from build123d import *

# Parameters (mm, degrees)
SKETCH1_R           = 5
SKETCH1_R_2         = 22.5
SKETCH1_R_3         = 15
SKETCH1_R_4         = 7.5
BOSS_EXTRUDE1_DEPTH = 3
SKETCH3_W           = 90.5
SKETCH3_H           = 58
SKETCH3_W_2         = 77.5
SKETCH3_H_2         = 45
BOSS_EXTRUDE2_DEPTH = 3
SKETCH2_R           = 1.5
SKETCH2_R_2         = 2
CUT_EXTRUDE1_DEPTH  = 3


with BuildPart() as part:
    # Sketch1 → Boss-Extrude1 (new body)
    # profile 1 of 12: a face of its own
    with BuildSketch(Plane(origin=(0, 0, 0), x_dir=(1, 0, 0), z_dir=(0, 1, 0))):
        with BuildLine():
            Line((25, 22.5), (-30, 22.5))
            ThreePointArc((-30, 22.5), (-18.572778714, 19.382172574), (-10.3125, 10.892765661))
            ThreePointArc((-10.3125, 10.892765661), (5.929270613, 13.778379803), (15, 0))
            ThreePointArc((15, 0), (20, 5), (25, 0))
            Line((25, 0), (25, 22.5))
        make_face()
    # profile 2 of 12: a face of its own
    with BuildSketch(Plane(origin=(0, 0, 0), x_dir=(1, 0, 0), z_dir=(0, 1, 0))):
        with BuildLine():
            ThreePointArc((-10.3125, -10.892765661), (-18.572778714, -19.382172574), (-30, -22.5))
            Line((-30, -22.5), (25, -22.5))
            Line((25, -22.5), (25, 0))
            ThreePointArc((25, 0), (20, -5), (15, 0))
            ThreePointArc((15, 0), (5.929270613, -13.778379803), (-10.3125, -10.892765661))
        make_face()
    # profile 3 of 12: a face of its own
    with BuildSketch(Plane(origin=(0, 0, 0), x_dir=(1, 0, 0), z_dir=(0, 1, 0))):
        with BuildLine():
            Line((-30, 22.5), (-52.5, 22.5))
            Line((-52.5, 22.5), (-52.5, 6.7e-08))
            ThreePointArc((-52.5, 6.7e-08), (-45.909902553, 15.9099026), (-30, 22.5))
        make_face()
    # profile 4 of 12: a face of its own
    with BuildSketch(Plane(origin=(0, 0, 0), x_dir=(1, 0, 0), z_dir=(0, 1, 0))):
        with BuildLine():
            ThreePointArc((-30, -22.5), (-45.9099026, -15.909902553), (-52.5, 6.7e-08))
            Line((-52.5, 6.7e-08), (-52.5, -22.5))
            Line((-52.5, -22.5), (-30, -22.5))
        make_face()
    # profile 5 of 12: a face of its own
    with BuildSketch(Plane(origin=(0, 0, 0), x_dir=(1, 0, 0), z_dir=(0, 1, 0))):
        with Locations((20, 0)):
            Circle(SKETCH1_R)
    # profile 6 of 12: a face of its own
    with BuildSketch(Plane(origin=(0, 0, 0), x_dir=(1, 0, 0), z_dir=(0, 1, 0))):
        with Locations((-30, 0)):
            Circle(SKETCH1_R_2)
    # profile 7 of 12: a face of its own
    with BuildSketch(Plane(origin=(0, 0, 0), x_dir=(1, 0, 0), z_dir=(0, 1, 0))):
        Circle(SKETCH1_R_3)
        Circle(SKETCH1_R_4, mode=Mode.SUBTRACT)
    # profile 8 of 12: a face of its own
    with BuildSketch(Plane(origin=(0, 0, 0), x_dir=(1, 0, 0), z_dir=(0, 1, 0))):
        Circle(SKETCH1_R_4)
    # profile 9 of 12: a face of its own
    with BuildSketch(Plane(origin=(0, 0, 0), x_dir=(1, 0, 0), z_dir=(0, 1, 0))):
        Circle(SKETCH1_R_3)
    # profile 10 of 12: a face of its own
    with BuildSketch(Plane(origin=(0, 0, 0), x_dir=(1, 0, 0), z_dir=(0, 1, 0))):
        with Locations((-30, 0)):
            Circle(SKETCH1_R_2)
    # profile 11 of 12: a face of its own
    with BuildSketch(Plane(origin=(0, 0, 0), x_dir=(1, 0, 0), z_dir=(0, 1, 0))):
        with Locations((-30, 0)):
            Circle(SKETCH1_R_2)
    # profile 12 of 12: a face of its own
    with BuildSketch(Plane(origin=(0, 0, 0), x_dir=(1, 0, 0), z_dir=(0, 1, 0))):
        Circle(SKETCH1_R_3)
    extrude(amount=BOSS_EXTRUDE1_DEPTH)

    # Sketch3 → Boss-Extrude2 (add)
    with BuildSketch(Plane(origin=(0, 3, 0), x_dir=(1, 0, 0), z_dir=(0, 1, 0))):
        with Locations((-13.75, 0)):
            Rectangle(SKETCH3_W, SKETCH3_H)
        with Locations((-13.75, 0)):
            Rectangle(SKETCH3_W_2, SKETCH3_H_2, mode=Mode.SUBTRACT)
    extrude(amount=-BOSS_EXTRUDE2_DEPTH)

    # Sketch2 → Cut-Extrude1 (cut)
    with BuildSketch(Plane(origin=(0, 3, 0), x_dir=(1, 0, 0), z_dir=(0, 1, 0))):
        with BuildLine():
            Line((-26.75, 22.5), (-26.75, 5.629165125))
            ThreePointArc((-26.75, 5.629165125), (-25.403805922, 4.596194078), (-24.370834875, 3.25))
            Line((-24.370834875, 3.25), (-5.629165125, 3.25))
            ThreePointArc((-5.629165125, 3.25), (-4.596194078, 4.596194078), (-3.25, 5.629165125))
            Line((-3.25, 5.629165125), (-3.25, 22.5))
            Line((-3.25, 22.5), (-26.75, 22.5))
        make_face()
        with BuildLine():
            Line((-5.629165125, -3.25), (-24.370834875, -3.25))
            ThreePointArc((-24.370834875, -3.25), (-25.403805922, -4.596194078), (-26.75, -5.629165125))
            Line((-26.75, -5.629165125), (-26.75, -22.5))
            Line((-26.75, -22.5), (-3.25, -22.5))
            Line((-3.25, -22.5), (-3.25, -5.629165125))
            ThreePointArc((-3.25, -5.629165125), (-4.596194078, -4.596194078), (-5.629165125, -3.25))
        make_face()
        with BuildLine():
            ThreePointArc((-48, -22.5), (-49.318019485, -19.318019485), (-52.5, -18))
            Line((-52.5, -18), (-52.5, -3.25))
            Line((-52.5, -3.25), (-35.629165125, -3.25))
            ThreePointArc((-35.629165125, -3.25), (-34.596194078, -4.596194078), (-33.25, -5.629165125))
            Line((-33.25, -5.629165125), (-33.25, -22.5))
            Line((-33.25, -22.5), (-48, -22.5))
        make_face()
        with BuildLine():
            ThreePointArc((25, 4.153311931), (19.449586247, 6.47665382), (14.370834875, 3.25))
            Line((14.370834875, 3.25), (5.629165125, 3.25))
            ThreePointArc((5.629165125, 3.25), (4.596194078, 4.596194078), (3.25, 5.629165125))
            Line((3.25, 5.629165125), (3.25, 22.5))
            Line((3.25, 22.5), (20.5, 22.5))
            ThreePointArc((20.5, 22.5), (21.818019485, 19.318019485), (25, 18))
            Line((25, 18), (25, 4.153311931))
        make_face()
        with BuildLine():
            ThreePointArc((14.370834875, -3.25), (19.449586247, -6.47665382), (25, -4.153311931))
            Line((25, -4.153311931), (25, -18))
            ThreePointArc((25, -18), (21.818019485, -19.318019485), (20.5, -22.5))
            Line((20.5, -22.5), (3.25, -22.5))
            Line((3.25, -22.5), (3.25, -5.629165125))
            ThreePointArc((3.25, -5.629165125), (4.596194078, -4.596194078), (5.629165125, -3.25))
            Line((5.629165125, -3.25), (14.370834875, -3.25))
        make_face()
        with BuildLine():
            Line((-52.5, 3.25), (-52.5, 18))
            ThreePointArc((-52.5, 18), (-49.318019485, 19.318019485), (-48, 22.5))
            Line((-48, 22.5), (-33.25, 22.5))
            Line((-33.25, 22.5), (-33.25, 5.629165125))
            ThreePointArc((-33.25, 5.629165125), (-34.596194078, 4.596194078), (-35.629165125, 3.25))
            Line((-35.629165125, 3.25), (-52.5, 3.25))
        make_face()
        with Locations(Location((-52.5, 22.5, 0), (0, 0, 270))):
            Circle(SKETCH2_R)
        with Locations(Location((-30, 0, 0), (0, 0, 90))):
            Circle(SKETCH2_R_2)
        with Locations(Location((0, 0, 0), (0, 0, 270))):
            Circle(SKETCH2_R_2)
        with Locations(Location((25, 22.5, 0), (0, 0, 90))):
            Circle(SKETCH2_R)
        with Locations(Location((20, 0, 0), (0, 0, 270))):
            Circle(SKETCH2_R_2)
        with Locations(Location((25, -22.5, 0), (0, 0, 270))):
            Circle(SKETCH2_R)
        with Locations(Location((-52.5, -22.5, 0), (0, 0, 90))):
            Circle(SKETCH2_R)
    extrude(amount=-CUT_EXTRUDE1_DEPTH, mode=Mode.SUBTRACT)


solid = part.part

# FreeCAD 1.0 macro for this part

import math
import FreeCAD as App
import Part
import Sketcher
Q = App.Units.Quantity


def add_polygon(sketch, points):
    """Adds a closed chain of lines whose ends are joined by coincident constraints."""
    first, n = sketch.GeometryCount, len(points)
    for a, b in zip(points, points[1:] + points[:1]):
        sketch.addGeometry(Part.LineSegment(App.Vector(*a, 0), App.Vector(*b, 0)), False)
    for i in range(n):
        sketch.addConstraint(Sketcher.Constraint("Coincident", first + i, 2, first + (i + 1) % n, 1))

doc = App.newDocument("Part")
body = doc.addObject("PartDesign::Body", "Body")

# Sketch on XZ plane
sketch1 = body.newObject("Sketcher::SketchObject", "Sketch")
sketch1.AttachmentSupport = (doc.getObject("XZ_Plane"), [""])
sketch1.MapMode = "FlatFace"
add_polygon(sketch1, [(25, -22), (-52, -22), (-52, 22), (25, 22)])  # lines 0-3
sketch1.addConstraint([
    Sketcher.Constraint("Horizontal", 0),
    Sketcher.Constraint("Vertical", 1),
    Sketcher.Constraint("Horizontal", 2),
    Sketcher.Constraint("Vertical", 3),
    Sketcher.Constraint("DistanceY", 1, 1, 1, 2, Q("45 mm")),
    Sketcher.Constraint("DistanceX", 0, 2, 0, 1, Q("77.5 mm")),
    Sketcher.Constraint("DistanceX", -1, 1, 2, 2, Q("25 mm")),
    Sketcher.Constraint("DistanceY", 0, 2, -1, 1, Q("22.5 mm")),
])
pad1 = body.newObject("PartDesign::Pad", "Pad")
pad1.Profile = sketch1
pad1.Length = 3
pad1.Reversed = True

# Sketch on XZ plane
sketch2 = body.newObject("Sketcher::SketchObject", "Sketch001")
sketch2.AttachmentSupport = (doc.getObject("XZ_Plane"), [""])
sketch2.MapMode = "FlatFace"
sketch2.AttachmentOffset = App.Placement(App.Vector(0, 0, -3), App.Rotation())
add_polygon(sketch2, [(-59, -29), (-59, 29), (32, 29), (32, -29)])  # lines 0-3
add_polygon(sketch2, [(25, 22), (-52, 22), (-52, -22), (25, -22)])  # lines 4-7
sketch2.addConstraint([
    Sketcher.Constraint("Vertical", 0),
    Sketcher.Constraint("Horizontal", 1),
    Sketcher.Constraint("Vertical", 2),
    Sketcher.Constraint("Horizontal", 3),
    Sketcher.Constraint("Horizontal", 4),
    Sketcher.Constraint("Vertical", 5),
    Sketcher.Constraint("Horizontal", 6),
    Sketcher.Constraint("Vertical", 7),
    Sketcher.Constraint("DistanceY", 0, 1, 0, 2, Q("58 mm")),
    Sketcher.Constraint("DistanceY", 5, 2, 5, 1, Q("45 mm")),
    Sketcher.Constraint("DistanceX", 1, 1, 1, 2, Q("90.5 mm")),
    Sketcher.Constraint("DistanceX", 4, 2, 4, 1, Q("77.5 mm")),
    Sketcher.Constraint("DistanceX", 0, 2, -1, 1, Q("59 mm")),
    Sketcher.Constraint("DistanceY", -1, 1, 0, 2, Q("29 mm")),
    Sketcher.Constraint("DistanceX", -1, 1, 6, 2, Q("25 mm")),
    Sketcher.Constraint("DistanceY", -1, 1, 4, 2, Q("22.5 mm")),
])
pad2 = body.newObject("PartDesign::Pad", "Pad001")
pad2.Profile = sketch2
pad2.Length = 3

# Sketch on XZ plane
sketch3 = body.newObject("Sketcher::SketchObject", "Sketch002")
sketch3.AttachmentSupport = (doc.getObject("XZ_Plane"), [""])
sketch3.MapMode = "FlatFace"
sketch3.AttachmentOffset = App.Placement(App.Vector(0, 0, -3), App.Rotation())
sketch3.addGeometry([
    Part.LineSegment(App.Vector(-26.8, -22.5, 0), App.Vector(-26.8, -5.6, 0)),  # 0
    Part.ArcOfCircle(Part.Circle(App.Vector(-30, 0, 0), App.Vector(0, 0, 1), 6.5), math.radians(-60), math.radians(-30)),  # 1
    Part.LineSegment(App.Vector(-24.4, -3.2, 0), App.Vector(-5.6, -3.2, 0)),  # 2
    Part.ArcOfCircle(Part.Circle(App.Vector(0, 0, 0), App.Vector(0, 0, 1), 6.5), math.radians(-150), math.radians(-120)),  # 3
    Part.LineSegment(App.Vector(-3.2, -5.6, 0), App.Vector(-3.2, -22.5, 0)),  # 4
    Part.LineSegment(App.Vector(-3.2, -22.5, 0), App.Vector(-26.8, -22.5, 0)),  # 5
    Part.LineSegment(App.Vector(-5.6, 3.2, 0), App.Vector(-24.4, 3.2, 0)),  # 6
    Part.ArcOfCircle(Part.Circle(App.Vector(-30, 0, 0), App.Vector(0, 0, 1), 6.5), math.radians(30), math.radians(60)),  # 7
    Part.LineSegment(App.Vector(-26.8, 5.6, 0), App.Vector(-26.8, 22.5, 0)),  # 8
    Part.LineSegment(App.Vector(-26.8, 22.5, 0), App.Vector(-3.2, 22.5, 0)),  # 9
    Part.LineSegment(App.Vector(-3.2, 22.5, 0), App.Vector(-3.2, 5.6, 0)),  # 10
    Part.ArcOfCircle(Part.Circle(App.Vector(0, 0, 0), App.Vector(0, 0, 1), 6.5), math.radians(120), math.radians(150)),  # 11
    Part.ArcOfCircle(Part.Circle(App.Vector(-52.5, 22.5, 0), App.Vector(0, 0, 1), 4.5), math.radians(-90), math.radians(0)),  # 12
    Part.LineSegment(App.Vector(-48, 22.5, 0), App.Vector(-33.2, 22.5, 0)),  # 13
    Part.LineSegment(App.Vector(-33.2, 22.5, 0), App.Vector(-33.2, 5.6, 0)),  # 14
    Part.ArcOfCircle(Part.Circle(App.Vector(-30, 0, 0), App.Vector(0, 0, 1), 6.5), math.radians(120), math.radians(150)),  # 15
    Part.LineSegment(App.Vector(-35.6, 3.2, 0), App.Vector(-52.5, 3.2, 0)),  # 16
    Part.LineSegment(App.Vector(-52.5, 3.2, 0), App.Vector(-52.5, 18, 0)),  # 17
    Part.ArcOfCircle(Part.Circle(App.Vector(20, 0, 0), App.Vector(0, 0, 1), 6.5), math.radians(-150), math.radians(-40)),  # 18
    Part.LineSegment(App.Vector(25, -4.2, 0), App.Vector(25, -18, 0)),  # 19
    Part.ArcOfCircle(Part.Circle(App.Vector(25, -22.5, 0), App.Vector(0, 0, 1), 4.5), math.radians(90), math.radians(180)),  # 20
    Part.LineSegment(App.Vector(20.5, -22.5, 0), App.Vector(3.2, -22.5, 0)),  # 21
    Part.LineSegment(App.Vector(3.2, -22.5, 0), App.Vector(3.2, -5.6, 0)),  # 22
    Part.ArcOfCircle(Part.Circle(App.Vector(0, 0, 0), App.Vector(0, 0, 1), 6.5), math.radians(-60), math.radians(-30)),  # 23
    Part.LineSegment(App.Vector(5.6, -3.2, 0), App.Vector(14.4, -3.2, 0)),  # 24
    Part.ArcOfCircle(Part.Circle(App.Vector(20, 0, 0), App.Vector(0, 0, 1), 6.5), math.radians(40), math.radians(150)),  # 25
    Part.LineSegment(App.Vector(14.4, 3.2, 0), App.Vector(5.6, 3.2, 0)),  # 26
    Part.ArcOfCircle(Part.Circle(App.Vector(0, 0, 0), App.Vector(0, 0, 1), 6.5), math.radians(30), math.radians(60)),  # 27
    Part.LineSegment(App.Vector(3.2, 5.6, 0), App.Vector(3.2, 22.5, 0)),  # 28
    Part.LineSegment(App.Vector(3.2, 22.5, 0), App.Vector(20.5, 22.5, 0)),  # 29
    Part.ArcOfCircle(Part.Circle(App.Vector(25, 22.5, 0), App.Vector(0, 0, 1), 4.5), math.radians(-180), math.radians(-90)),  # 30
    Part.LineSegment(App.Vector(25, 18, 0), App.Vector(25, 4.2, 0)),  # 31
    Part.LineSegment(App.Vector(-52.5, -18, 0), App.Vector(-52.5, -3.2, 0)),  # 32
    Part.LineSegment(App.Vector(-52.5, -3.2, 0), App.Vector(-35.6, -3.2, 0)),  # 33
    Part.ArcOfCircle(Part.Circle(App.Vector(-30, 0, 0), App.Vector(0, 0, 1), 6.5), math.radians(-150), math.radians(-120)),  # 34
    Part.LineSegment(App.Vector(-33.2, -5.6, 0), App.Vector(-33.2, -22.5, 0)),  # 35
    Part.LineSegment(App.Vector(-33.2, -22.5, 0), App.Vector(-48, -22.5, 0)),  # 36
    Part.ArcOfCircle(Part.Circle(App.Vector(-52.5, -22.5, 0), App.Vector(0, 0, 1), 4.5), math.radians(0), math.radians(90)),  # 37
    Part.Circle(App.Vector(-52.5, -22.5, 0), App.Vector(0, 0, 1), 1.5),  # 38
    Part.Circle(App.Vector(-30, 0, 0), App.Vector(0, 0, 1), 2),  # 39
    Part.Circle(App.Vector(0, 0, 0), App.Vector(0, 0, 1), 2),  # 40
    Part.Circle(App.Vector(25, -22.5, 0), App.Vector(0, 0, 1), 1.5),  # 41
    Part.Circle(App.Vector(20, 0, 0), App.Vector(0, 0, 1), 2),  # 42
    Part.Circle(App.Vector(25, 22.5, 0), App.Vector(0, 0, 1), 1.5),  # 43
    Part.Circle(App.Vector(-52.5, 22.5, 0), App.Vector(0, 0, 1), 1.5),  # 44
], False)
sketch3.addConstraint([
    Sketcher.Constraint("Coincident", 0, 2, 1, 1),
    Sketcher.Constraint("Coincident", 1, 2, 2, 1),
    Sketcher.Constraint("Coincident", 2, 2, 3, 1),
    Sketcher.Constraint("Coincident", 3, 2, 4, 1),
    Sketcher.Constraint("Coincident", 4, 2, 5, 1),
    Sketcher.Constraint("Coincident", 5, 2, 0, 1),
    Sketcher.Constraint("Coincident", 6, 2, 7, 1),
    Sketcher.Constraint("Coincident", 7, 2, 8, 1),
    Sketcher.Constraint("Coincident", 8, 2, 9, 1),
    Sketcher.Constraint("Coincident", 9, 2, 10, 1),
    Sketcher.Constraint("Coincident", 10, 2, 11, 1),
    Sketcher.Constraint("Coincident", 11, 2, 6, 1),
    Sketcher.Constraint("Coincident", 12, 2, 13, 1),
    Sketcher.Constraint("Coincident", 13, 2, 14, 1),
    Sketcher.Constraint("Coincident", 14, 2, 15, 1),
    Sketcher.Constraint("Coincident", 15, 2, 16, 1),
    Sketcher.Constraint("Coincident", 16, 2, 17, 1),
    Sketcher.Constraint("Coincident", 17, 2, 12, 1),
    Sketcher.Constraint("Coincident", 18, 2, 19, 1),
    Sketcher.Constraint("Coincident", 19, 2, 20, 1),
    Sketcher.Constraint("Coincident", 20, 2, 21, 1),
    Sketcher.Constraint("Coincident", 21, 2, 22, 1),
    Sketcher.Constraint("Coincident", 22, 2, 23, 1),
    Sketcher.Constraint("Coincident", 23, 2, 24, 1),
    Sketcher.Constraint("Coincident", 24, 2, 18, 1),
    Sketcher.Constraint("Coincident", 25, 2, 26, 1),
    Sketcher.Constraint("Coincident", 26, 2, 27, 1),
    Sketcher.Constraint("Coincident", 27, 2, 28, 1),
    Sketcher.Constraint("Coincident", 28, 2, 29, 1),
    Sketcher.Constraint("Coincident", 29, 2, 30, 1),
    Sketcher.Constraint("Coincident", 30, 2, 31, 1),
    Sketcher.Constraint("Coincident", 31, 2, 25, 1),
    Sketcher.Constraint("Coincident", 32, 2, 33, 1),
    Sketcher.Constraint("Coincident", 33, 2, 34, 1),
    Sketcher.Constraint("Coincident", 34, 2, 35, 1),
    Sketcher.Constraint("Coincident", 35, 2, 36, 1),
    Sketcher.Constraint("Coincident", 36, 2, 37, 1),
    Sketcher.Constraint("Coincident", 37, 2, 32, 1),
    Sketcher.Constraint("Vertical", 0),
    Sketcher.Constraint("Horizontal", 2),
    Sketcher.Constraint("Vertical", 4),
    Sketcher.Constraint("Horizontal", 5),
    Sketcher.Constraint("Horizontal", 6),
    Sketcher.Constraint("Vertical", 8),
    Sketcher.Constraint("Horizontal", 9),
    Sketcher.Constraint("Vertical", 10),
    Sketcher.Constraint("Horizontal", 13),
    Sketcher.Constraint("Vertical", 14),
    Sketcher.Constraint("Horizontal", 16),
    Sketcher.Constraint("Vertical", 17),
    Sketcher.Constraint("Vertical", 19),
    Sketcher.Constraint("Horizontal", 21),
    Sketcher.Constraint("Vertical", 22),
    Sketcher.Constraint("Horizontal", 24),
    Sketcher.Constraint("Horizontal", 26),
    Sketcher.Constraint("Vertical", 28),
    Sketcher.Constraint("Horizontal", 29),
    Sketcher.Constraint("Vertical", 31),
    Sketcher.Constraint("Vertical", 32),
    Sketcher.Constraint("Horizontal", 33),
    Sketcher.Constraint("Vertical", 35),
    Sketcher.Constraint("Horizontal", 36),
    Sketcher.Constraint("Coincident", 3, 3, -1, 1),
    Sketcher.Constraint("Coincident", 11, 3, -1, 1),
    Sketcher.Constraint("Coincident", 23, 3, -1, 1),
    Sketcher.Constraint("Coincident", 27, 3, -1, 1),
    Sketcher.Constraint("Coincident", 40, 3, -1, 1),
    Sketcher.Constraint("Coincident", 7, 3, 1, 3),
    Sketcher.Constraint("Coincident", 15, 3, 1, 3),
    Sketcher.Constraint("Coincident", 25, 3, 18, 3),
    Sketcher.Constraint("Coincident", 34, 3, 1, 3),
    Sketcher.Constraint("Coincident", 38, 3, 37, 3),
    Sketcher.Constraint("Coincident", 39, 3, 1, 3),
    Sketcher.Constraint("Coincident", 41, 3, 20, 3),
    Sketcher.Constraint("Coincident", 42, 3, 18, 3),
    Sketcher.Constraint("Coincident", 43, 3, 30, 3),
    Sketcher.Constraint("Coincident", 44, 3, 12, 3),
    Sketcher.Constraint("Equal", 1, 3),
    Sketcher.Constraint("Equal", 3, 7),
    Sketcher.Constraint("Equal", 7, 11),
    Sketcher.Constraint("Equal", 11, 15),
    Sketcher.Constraint("Equal", 15, 18),
    Sketcher.Constraint("Equal", 12, 20),
    Sketcher.Constraint("Equal", 18, 23),
    Sketcher.Constraint("Equal", 23, 25),
    Sketcher.Constraint("Equal", 25, 27),
    Sketcher.Constraint("Equal", 20, 30),
    Sketcher.Constraint("Equal", 27, 34),
    Sketcher.Constraint("Equal", 30, 37),
    Sketcher.Constraint("Equal", 39, 40),
    Sketcher.Constraint("Equal", 38, 41),
    Sketcher.Constraint("Equal", 40, 42),
    Sketcher.Constraint("Equal", 41, 43),
    Sketcher.Constraint("Equal", 43, 44),
    Sketcher.Constraint("Symmetric", 9, 2, 21, 2, -1, 1),
    Sketcher.Constraint("Symmetric", 4, 2, 28, 2, -1, 1),
    Sketcher.Constraint("Symmetric", 4, 2, 21, 2, -2),
    Sketcher.Constraint("Symmetric", 20, 3, 30, 3, -1),
    Sketcher.Constraint("Symmetric", 12, 3, 37, 3, -1),
    Sketcher.Constraint("Symmetric", 1, 2, 6, 2, -1),
    Sketcher.Constraint("Symmetric", 24, 2, 25, 2, -1),
    Sketcher.Constraint("Symmetric", 16, 2, 32, 2, -1),
    Sketcher.Constraint("Symmetric", 13, 2, 35, 2, -1),
    Sketcher.Constraint("Horizontal", 12, 3, 30, 3),
    Sketcher.Constraint("Horizontal", 0, 2, 3, 2),
    Sketcher.Constraint("Horizontal", 41, 3, 4, 2),
    Sketcher.Constraint("Horizontal", 7, 2, 10, 2),
    Sketcher.Constraint("Horizontal", 9, 2, 12, 2),
    Sketcher.Constraint("Horizontal", 10, 2, 14, 2),
    Sketcher.Constraint("Horizontal", 11, 2, 15, 2),
    Sketcher.Constraint("Horizontal", 2, 2, 23, 2),
    Sketcher.Constraint("Vertical", 44, 3, 16, 2),
    Sketcher.Constraint("Vertical", 43, 3, 18, 2),
    Sketcher.Constraint("Vertical", 19, 2, 30, 2),
    Sketcher.Constraint("Equal", 33, 0),
    Sketcher.Constraint("Equal", 36, 17),
    Sketcher.Constraint("Diameter", 38, Q("3 mm")),
    Sketcher.Constraint("Diameter", 39, Q("4 mm")),
    Sketcher.Constraint("Radius", 1, Q("6.5 mm")),
    Sketcher.Constraint("Radius", 12, Q("4.5 mm")),
    Sketcher.Constraint("DistanceX", 5, 2, 5, 1, Q("23.5 mm")),
    Sketcher.Constraint("DistanceX", 1, 3, -1, 1, Q("30 mm")),
    Sketcher.Constraint("DistanceX", -1, 1, 18, 3, Q("20 mm")),
    Sketcher.Constraint("DistanceX", -1, 1, 20, 3, Q("25 mm")),
    Sketcher.Constraint("DistanceX", 12, 2, -1, 1, Q("48 mm")),
])
pocket1 = body.newObject("PartDesign::Pocket", "Pocket")
pocket1.Profile = sketch3
pocket1.Length = 3
pocket1.Reversed = True

doc.recompute()
